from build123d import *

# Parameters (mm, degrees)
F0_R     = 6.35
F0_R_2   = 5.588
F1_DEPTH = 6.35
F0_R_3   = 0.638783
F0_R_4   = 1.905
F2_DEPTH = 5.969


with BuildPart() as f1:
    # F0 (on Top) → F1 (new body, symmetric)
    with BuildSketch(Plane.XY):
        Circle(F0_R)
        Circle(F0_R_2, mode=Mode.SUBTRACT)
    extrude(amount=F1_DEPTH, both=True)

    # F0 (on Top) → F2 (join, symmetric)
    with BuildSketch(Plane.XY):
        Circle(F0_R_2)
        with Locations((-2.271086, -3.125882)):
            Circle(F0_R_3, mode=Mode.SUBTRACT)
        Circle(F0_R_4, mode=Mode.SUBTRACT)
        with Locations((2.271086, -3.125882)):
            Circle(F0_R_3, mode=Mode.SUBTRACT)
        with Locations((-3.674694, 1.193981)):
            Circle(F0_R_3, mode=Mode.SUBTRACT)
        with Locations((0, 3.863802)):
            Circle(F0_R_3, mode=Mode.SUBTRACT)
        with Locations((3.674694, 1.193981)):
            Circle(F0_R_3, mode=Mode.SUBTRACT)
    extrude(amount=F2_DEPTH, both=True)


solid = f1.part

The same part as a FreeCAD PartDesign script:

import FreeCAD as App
import Part
import Sketcher
Q = App.Units.Quantity

doc = App.newDocument("Part")
params = doc.addObject("Spreadsheet::Sheet", "Params")
for row, (alias, value) in enumerate([
    ("sketch1_diameter", "0.5 in"),
    ("sketch1_diameter2", "0.44 in"),
    ("pad1_length", "0.5 in"),
    ("sketch2_diameter", "0.44 in"),
    ("sketch2_diameter2", "0.15 in"),
    ("pad2_length", "0.47 in"),
], start=1):
    params.set(f"A{row}", alias)
    params.set(f"B{row}", "=" + value)
    params.setAlias(f"B{row}", alias)

body = doc.addObject("PartDesign::Body", "Body")

sketch1 = body.newObject("Sketcher::SketchObject", "Sketch")
sketch1.AttachmentSupport = (doc.getObject("XY_Plane"), [""])
sketch1.MapMode = "FlatFace"
sketch1.addGeometry([
    Part.Circle(App.Vector(0, 0, 0), App.Vector(0, 0, 1), 6),
    Part.Circle(App.Vector(0, 0, 0), App.Vector(0, 0, 1), 6),
], False)
sketch1.addConstraint([
    Sketcher.Constraint("Coincident", 0, 3, -1, 1),
    Sketcher.Constraint("Coincident", 1, 3, -1, 1),
    Sketcher.Constraint("Diameter", 0, Q("0.5 in")),
    Sketcher.Constraint("Diameter", 1, Q("0.44 in")),
])
sketch1.setExpression("Constraints[2]", "Params.sketch1_diameter")
sketch1.setExpression("Constraints[3]", "Params.sketch1_diameter2")
pad1 = body.newObject("PartDesign::Pad", "Pad")
pad1.Profile = sketch1
pad1.setExpression("Length", "Params.pad1_length")
pad1.Midplane = True

sketch2 = body.newObject("Sketcher::SketchObject", "Sketch001")
sketch2.AttachmentSupport = (doc.getObject("XY_Plane"), [""])
sketch2.MapMode = "FlatFace"
sketch2.addGeometry([
    Part.Circle(App.Vector(0, 0, 0), App.Vector(0, 0, 1), 5.6),
    Part.Circle(App.Vector(-2.3, -3.1, 0), App.Vector(0, 0, 1), 0.6),
    Part.Circle(App.Vector(0, 0, 0), App.Vector(0, 0, 1), 1.9),
    Part.Circle(App.Vector(2.3, -3.1, 0), App.Vector(0, 0, 1), 0.6),
    Part.Circle(App.Vector(-3.7, 1.2, 0), App.Vector(0, 0, 1), 0.6),
    Part.Circle(App.Vector(0, 3.9, 0), App.Vector(0, 0, 1), 0.6),
    Part.Circle(App.Vector(3.7, 1.2, 0), App.Vector(0, 0, 1), 0.6),
], False)
sketch2.addConstraint([
    Sketcher.Constraint("Coincident", 0, 3, -1, 1),
    Sketcher.Constraint("Coincident", 2, 3, -1, 1),
    Sketcher.Constraint("Equal", 1, 3),
    Sketcher.Constraint("Equal", 3, 4),
    Sketcher.Constraint("Equal", 4, 5),
    Sketcher.Constraint("Equal", 5, 6),
    Sketcher.Constraint("Symmetric", 1, 3, 3, 3, -2),
    Sketcher.Constraint("Symmetric", 4, 3, 6, 3, -2),
    Sketcher.Constraint("PointOnObject", 5, 3, -2),
    Sketcher.Constraint("Diameter", 0, Q("0.44 in")),
    Sketcher.Constraint("Diameter", 2, Q("0.15 in")),
    Sketcher.Constraint("Diameter", 1, 1.277566),
    Sketcher.Constraint("DistanceY", 1, 3, -1, 1, 3.125882),
    Sketcher.Constraint("DistanceY", -1, 1, 4, 3, 1.193981),
    Sketcher.Constraint("DistanceX", 4, 3, 1, 3, 1.403608),
    Sketcher.Constraint("DistanceX", 4, 3, 3, 3, 5.94578),
    Sketcher.Constraint("DistanceY", 4, 3, 5, 3, 2.669821),
])
sketch2.setExpression("Constraints[9]", "Params.sketch2_diameter")
sketch2.setExpression("Constraints[10]", "Params.sketch2_diameter2")
pad2 = body.newObject("PartDesign::Pad", "Pad001")
pad2.Profile = sketch2
pad2.setExpression("Length", "Params.pad2_length")
pad2.Midplane = True

doc.recompute()
